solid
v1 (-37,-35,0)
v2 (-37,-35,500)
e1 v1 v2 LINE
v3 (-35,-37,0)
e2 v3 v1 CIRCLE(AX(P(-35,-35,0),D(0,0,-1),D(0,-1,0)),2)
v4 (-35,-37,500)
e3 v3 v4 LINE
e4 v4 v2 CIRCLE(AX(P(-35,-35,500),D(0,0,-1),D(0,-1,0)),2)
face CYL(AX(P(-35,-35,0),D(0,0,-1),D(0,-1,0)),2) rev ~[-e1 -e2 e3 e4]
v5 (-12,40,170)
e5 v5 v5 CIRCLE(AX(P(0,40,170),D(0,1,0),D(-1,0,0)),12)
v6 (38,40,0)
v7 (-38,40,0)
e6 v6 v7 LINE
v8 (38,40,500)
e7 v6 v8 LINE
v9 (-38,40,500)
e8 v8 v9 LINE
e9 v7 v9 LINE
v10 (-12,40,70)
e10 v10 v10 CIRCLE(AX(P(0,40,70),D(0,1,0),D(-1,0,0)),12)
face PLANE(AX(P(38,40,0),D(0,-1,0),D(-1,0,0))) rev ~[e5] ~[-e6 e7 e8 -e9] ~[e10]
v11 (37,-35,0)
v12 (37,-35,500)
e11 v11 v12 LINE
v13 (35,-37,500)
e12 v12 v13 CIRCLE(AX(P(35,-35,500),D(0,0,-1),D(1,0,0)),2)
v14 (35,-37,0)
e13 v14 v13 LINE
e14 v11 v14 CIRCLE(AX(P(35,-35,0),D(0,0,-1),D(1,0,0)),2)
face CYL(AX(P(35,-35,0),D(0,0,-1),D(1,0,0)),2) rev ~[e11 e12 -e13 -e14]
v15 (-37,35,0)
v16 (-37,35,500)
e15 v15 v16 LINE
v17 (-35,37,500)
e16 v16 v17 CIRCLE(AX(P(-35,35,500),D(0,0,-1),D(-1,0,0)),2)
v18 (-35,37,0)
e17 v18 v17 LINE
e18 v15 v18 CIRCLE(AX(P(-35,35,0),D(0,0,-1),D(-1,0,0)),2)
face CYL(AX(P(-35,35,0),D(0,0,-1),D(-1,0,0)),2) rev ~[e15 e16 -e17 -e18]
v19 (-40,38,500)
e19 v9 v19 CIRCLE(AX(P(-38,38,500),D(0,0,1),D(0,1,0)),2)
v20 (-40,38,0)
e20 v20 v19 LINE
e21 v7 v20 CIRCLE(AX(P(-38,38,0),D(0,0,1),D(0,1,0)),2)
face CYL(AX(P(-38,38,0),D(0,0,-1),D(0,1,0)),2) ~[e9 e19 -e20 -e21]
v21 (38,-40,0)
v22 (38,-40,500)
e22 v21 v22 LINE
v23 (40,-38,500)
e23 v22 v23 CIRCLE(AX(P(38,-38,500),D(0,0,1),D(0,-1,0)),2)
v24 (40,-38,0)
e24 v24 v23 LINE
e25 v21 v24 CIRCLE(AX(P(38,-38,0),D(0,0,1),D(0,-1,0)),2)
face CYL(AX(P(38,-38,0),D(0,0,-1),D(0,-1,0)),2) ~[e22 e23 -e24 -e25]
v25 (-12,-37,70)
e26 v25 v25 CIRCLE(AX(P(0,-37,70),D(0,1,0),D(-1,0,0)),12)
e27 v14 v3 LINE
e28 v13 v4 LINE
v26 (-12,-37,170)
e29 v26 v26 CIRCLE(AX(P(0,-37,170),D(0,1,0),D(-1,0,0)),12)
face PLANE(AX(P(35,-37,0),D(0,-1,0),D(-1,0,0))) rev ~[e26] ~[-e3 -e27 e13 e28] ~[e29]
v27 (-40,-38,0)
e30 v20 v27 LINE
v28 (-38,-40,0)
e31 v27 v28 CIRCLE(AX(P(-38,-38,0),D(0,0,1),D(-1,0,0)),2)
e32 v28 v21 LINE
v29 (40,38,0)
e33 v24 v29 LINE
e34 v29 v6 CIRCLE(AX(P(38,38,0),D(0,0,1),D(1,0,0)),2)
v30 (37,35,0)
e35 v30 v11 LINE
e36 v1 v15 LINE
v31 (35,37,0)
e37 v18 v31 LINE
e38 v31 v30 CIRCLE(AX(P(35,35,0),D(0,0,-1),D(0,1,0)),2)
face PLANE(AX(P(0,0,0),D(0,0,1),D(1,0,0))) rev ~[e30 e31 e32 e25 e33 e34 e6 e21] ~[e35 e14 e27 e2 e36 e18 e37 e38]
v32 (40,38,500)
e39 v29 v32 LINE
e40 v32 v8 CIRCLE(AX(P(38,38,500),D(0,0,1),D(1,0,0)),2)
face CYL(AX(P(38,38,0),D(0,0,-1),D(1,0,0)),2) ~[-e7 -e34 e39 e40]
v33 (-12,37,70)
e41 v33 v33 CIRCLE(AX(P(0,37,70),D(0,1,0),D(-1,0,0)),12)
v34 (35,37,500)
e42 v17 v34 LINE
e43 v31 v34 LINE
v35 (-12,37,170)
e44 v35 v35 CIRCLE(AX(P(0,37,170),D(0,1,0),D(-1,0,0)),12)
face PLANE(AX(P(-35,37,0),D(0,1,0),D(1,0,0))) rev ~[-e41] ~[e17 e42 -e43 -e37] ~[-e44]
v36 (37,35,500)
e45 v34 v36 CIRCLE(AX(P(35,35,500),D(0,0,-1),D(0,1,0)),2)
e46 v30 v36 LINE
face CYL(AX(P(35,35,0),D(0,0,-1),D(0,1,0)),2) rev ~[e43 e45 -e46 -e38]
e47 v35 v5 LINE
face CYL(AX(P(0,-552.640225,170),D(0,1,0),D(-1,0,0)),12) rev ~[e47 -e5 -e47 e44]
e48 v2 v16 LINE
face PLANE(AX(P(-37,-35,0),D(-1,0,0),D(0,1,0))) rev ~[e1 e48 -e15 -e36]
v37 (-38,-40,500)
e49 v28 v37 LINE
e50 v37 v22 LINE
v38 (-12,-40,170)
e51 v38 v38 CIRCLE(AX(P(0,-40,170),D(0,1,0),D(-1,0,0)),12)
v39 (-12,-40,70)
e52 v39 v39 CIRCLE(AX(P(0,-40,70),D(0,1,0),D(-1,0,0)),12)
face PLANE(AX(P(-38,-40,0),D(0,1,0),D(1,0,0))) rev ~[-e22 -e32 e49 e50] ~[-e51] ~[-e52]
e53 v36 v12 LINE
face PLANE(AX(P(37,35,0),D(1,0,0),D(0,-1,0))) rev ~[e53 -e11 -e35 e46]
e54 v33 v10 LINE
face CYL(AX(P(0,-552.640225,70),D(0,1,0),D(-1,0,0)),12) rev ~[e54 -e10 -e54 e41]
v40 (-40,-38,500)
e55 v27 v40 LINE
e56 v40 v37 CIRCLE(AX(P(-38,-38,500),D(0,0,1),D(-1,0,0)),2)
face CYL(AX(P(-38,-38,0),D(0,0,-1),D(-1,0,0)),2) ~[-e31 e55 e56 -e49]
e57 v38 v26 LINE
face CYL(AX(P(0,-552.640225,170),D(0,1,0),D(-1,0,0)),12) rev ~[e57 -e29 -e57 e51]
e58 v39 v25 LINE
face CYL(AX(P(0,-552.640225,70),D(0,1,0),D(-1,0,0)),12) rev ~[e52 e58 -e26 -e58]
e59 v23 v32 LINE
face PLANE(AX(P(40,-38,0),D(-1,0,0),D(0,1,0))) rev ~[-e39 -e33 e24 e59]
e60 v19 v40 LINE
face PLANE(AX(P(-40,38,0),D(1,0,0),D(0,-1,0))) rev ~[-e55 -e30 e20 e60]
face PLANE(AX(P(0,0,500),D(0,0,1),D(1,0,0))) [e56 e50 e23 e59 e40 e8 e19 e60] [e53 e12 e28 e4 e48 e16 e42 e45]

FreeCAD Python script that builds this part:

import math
import FreeCAD as App
import Part
import Sketcher

V = App.Vector
Q = App.Units.Quantity

doc = App.newDocument("Part")
body = doc.addObject("PartDesign::Body", "Body")

sketch1 = body.newObject("Sketcher::SketchObject", "Sketch")
sketch1.AttachmentSupport = (doc.getObject("XY_Plane"), [""])
sketch1.MapMode = "FlatFace"
sketch1.addGeometry(Part.LineSegment(V(-38, -40, 0), V(38, -40, 0)), False)
sketch1.addGeometry(Part.ArcOfCircle(Part.Circle(V(38, -38, 0), V(0, 0, 1), 2), math.radians(-90), math.radians(0)), False)
sketch1.addGeometry(Part.LineSegment(V(40, -38, 0), V(40, 38, 0)), False)
sketch1.addGeometry(Part.ArcOfCircle(Part.Circle(V(38, 38, 0), V(0, 0, 1), 2), math.radians(0), math.radians(90)), False)
sketch1.addGeometry(Part.LineSegment(V(38, 40, 0), V(-38, 40, 0)), False)
sketch1.addGeometry(Part.ArcOfCircle(Part.Circle(V(-38, 38, 0), V(0, 0, 1), 2), math.radians(90), math.radians(180)), False)
sketch1.addGeometry(Part.LineSegment(V(-40, 38, 0), V(-40, -38, 0)), False)
sketch1.addGeometry(Part.ArcOfCircle(Part.Circle(V(-38, -38, 0), V(0, 0, 1), 2), math.radians(180), math.radians(270)), False)
sketch1.addGeometry(Part.ArcOfCircle(Part.Circle(V(-35, 35, 0), V(0, 0, 1), 2), math.radians(90), math.radians(180)), False)
sketch1.addGeometry(Part.LineSegment(V(-35, 37, 0), V(35, 37, 0)), False)
sketch1.addGeometry(Part.ArcOfCircle(Part.Circle(V(35, 35, 0), V(0, 0, 1), 2), math.radians(0), math.radians(90)), False)
sketch1.addGeometry(Part.LineSegment(V(37, 35, 0), V(37, -35, 0)), False)
sketch1.addGeometry(Part.ArcOfCircle(Part.Circle(V(35, -35, 0), V(0, 0, 1), 2), math.radians(-90), math.radians(0)), False)
sketch1.addGeometry(Part.LineSegment(V(35, -37, 0), V(-35, -37, 0)), False)
sketch1.addGeometry(Part.ArcOfCircle(Part.Circle(V(-35, -35, 0), V(0, 0, 1), 2), math.radians(180), math.radians(270)), False)
sketch1.addGeometry(Part.LineSegment(V(-37, -35, 0), V(-37, 35, 0)), False)
sketch1.addConstraint(Sketcher.Constraint("Tangent", 0, 2, 1, 1))
sketch1.addConstraint(Sketcher.Constraint("Tangent", 1, 2, 2, 1))
sketch1.addConstraint(Sketcher.Constraint("Tangent", 2, 2, 3, 1))
sketch1.addConstraint(Sketcher.Constraint("Tangent", 3, 2, 4, 1))
sketch1.addConstraint(Sketcher.Constraint("Tangent", 4, 2, 5, 1))
sketch1.addConstraint(Sketcher.Constraint("Tangent", 5, 2, 6, 1))
sketch1.addConstraint(Sketcher.Constraint("Tangent", 6, 2, 7, 1))
sketch1.addConstraint(Sketcher.Constraint("Tangent", 7, 2, 0, 1))
sketch1.addConstraint(Sketcher.Constraint("Tangent", 8, 1, 9, 1))
sketch1.addConstraint(Sketcher.Constraint("Tangent", 9, 2, 10, 2))
sketch1.addConstraint(Sketcher.Constraint("Tangent", 10, 1, 11, 1))
sketch1.addConstraint(Sketcher.Constraint("Tangent", 11, 2, 12, 2))
sketch1.addConstraint(Sketcher.Constraint("Tangent", 12, 1, 13, 1))
sketch1.addConstraint(Sketcher.Constraint("Tangent", 13, 2, 14, 2))
sketch1.addConstraint(Sketcher.Constraint("Tangent", 14, 1, 15, 1))
sketch1.addConstraint(Sketcher.Constraint("Tangent", 15, 2, 8, 2))
sketch1.addConstraint(Sketcher.Constraint("Horizontal", 0))
sketch1.addConstraint(Sketcher.Constraint("Vertical", 2))
sketch1.addConstraint(Sketcher.Constraint("Horizontal", 4))
sketch1.addConstraint(Sketcher.Constraint("Vertical", 6))
sketch1.addConstraint(Sketcher.Constraint("Horizontal", 9))
sketch1.addConstraint(Sketcher.Constraint("Vertical", 11))
sketch1.addConstraint(Sketcher.Constraint("Horizontal", 13))
sketch1.addConstraint(Sketcher.Constraint("Vertical", 15))
sketch1.addConstraint(Sketcher.Constraint("Equal", 1, 3))
sketch1.addConstraint(Sketcher.Constraint("Equal", 3, 5))
sketch1.addConstraint(Sketcher.Constraint("Equal", 5, 7))
sketch1.addConstraint(Sketcher.Constraint("Equal", 7, 8))
sketch1.addConstraint(Sketcher.Constraint("Equal", 8, 10))
sketch1.addConstraint(Sketcher.Constraint("Equal", 10, 12))
sketch1.addConstraint(Sketcher.Constraint("Equal", 12, 14))
sketch1.addConstraint(Sketcher.Constraint("Symmetric", 1, 3, 5, 3, -1, 1))
sketch1.addConstraint(Sketcher.Constraint("Symmetric", 8, 3, 12, 3, -1, 1))
sketch1.addConstraint(Sketcher.Constraint("Equal", 4, 2))
sketch1.addConstraint(Sketcher.Constraint("Equal", 13, 11))
sketch1.addConstraint(Sketcher.Constraint("Radius", 1, Q("2 mm")))
sketch1.addConstraint(Sketcher.Constraint("DistanceX", 0, 1, 0, 2, Q("76 mm")))
sketch1.addConstraint(Sketcher.Constraint("DistanceX", 9, 1, 9, 2, Q("70 mm")))
pad1 = body.newObject("PartDesign::Pad", "Pad")
pad1.Profile = sketch1
pad1.Length = 500

sketch2 = body.newObject("Sketcher::SketchObject", "Sketch001")
sketch2.AttachmentSupport = (doc.getObject("XZ_Plane"), [""])
sketch2.MapMode = "FlatFace"
sketch2.AttachmentOffset = App.Placement(V(0, 0, 40), App.Rotation())
sketch2.addGeometry(Part.Circle(V(0, 170, 0), V(0, 0, 1), 12), False)
sketch2.addGeometry(Part.Circle(V(0, 70, 0), V(0, 0, 1), 12), False)
sketch2.addConstraint(Sketcher.Constraint("Equal", 0, 1))
sketch2.addConstraint(Sketcher.Constraint("PointOnObject", 0, 3, -2))
sketch2.addConstraint(Sketcher.Constraint("PointOnObject", 1, 3, -2))
sketch2.addConstraint(Sketcher.Constraint("Diameter", 0, Q("24 mm")))
sketch2.addConstraint(Sketcher.Constraint("DistanceY", -1, 1, 0, 3, Q("170 mm")))
sketch2.addConstraint(Sketcher.Constraint("DistanceY", -1, 1, 1, 3, Q("70 mm")))
doc.recompute()
hole = body.newObject("PartDesign::Hole", "Hole")
hole.Profile = sketch2
hole.ThreadType = "None"
hole.Diameter = 24
hole.DepthType = "ThroughAll"

doc.recompute()
